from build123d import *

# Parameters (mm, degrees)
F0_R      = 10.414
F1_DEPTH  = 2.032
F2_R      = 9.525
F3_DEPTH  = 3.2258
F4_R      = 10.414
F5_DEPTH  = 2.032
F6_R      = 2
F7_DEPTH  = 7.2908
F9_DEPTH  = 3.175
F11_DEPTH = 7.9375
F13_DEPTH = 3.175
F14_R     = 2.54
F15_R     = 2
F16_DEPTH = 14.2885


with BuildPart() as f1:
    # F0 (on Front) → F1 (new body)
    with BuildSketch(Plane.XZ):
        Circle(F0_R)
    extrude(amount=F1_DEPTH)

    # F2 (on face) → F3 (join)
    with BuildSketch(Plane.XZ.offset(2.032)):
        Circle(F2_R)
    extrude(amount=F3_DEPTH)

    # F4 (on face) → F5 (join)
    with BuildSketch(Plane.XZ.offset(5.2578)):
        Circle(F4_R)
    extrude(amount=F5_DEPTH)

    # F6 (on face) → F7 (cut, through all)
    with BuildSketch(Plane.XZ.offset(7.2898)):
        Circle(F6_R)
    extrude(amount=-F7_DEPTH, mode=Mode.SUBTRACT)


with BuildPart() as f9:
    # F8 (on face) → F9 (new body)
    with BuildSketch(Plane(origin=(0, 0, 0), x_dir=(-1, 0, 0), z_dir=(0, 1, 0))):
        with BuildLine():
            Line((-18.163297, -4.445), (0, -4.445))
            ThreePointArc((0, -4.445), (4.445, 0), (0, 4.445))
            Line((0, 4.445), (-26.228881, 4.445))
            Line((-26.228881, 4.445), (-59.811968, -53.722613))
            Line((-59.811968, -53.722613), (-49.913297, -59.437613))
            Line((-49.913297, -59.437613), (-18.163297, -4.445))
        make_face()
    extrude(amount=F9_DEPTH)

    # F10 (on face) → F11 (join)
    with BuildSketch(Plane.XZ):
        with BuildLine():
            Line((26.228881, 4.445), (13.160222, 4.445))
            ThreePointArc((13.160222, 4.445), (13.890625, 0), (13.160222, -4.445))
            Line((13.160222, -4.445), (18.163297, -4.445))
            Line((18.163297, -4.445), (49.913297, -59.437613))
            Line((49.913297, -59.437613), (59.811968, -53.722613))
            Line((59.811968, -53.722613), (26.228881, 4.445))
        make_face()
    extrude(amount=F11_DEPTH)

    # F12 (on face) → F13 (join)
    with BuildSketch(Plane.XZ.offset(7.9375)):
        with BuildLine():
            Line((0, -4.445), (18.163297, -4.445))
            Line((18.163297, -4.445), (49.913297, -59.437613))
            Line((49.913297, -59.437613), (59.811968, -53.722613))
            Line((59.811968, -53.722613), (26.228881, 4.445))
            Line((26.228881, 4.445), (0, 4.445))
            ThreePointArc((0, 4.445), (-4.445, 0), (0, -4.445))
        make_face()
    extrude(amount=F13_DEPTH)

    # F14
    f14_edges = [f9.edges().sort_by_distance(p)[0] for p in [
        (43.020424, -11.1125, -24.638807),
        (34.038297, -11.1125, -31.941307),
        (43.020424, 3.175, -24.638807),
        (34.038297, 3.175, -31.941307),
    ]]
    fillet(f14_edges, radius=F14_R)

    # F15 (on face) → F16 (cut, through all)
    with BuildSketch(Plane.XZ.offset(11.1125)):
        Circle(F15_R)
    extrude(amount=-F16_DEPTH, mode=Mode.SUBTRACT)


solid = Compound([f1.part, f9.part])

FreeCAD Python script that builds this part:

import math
import FreeCAD as App
import Part
import Sketcher
Q = App.Units.Quantity


def edges_at(feature, points):
    """Names of the edges that pass closest to the given points."""
    edges = feature.Shape.Edges
    near = lambda p: min(range(len(edges)), key=lambda i: edges[i].distToShape(Part.Vertex(*p))[0])
    return sorted({f"Edge{near(p) + 1}" for p in points})

doc = App.newDocument("Part")
body = doc.addObject("PartDesign::Body", "Body")

# Sketch on XZ plane
sketch1 = doc.addObject("Sketcher::SketchObject", "Sketch")
body.addObject(sketch1)
sketch1.AttachmentSupport = (doc.XZ_Plane, [""])
sketch1.MapMode = "FlatFace"
sketch1.addGeometry(Part.Circle(App.Vector(0, 0, 0), App.Vector(0, 0, 1), 10.414), False)
sketch1.addConstraint([
    Sketcher.Constraint("Coincident", 0, 3, -1, 1),
    Sketcher.Constraint("Diameter", 0, Q("0.82 in")),
])
pad1 = doc.addObject("PartDesign::Pad", "Pad")
body.addObject(pad1)
pad1.Profile = sketch1
pad1.Length = Q("0.08 in")

# Sketch on XZ plane
sketch2 = doc.addObject("Sketcher::SketchObject", "Sketch001")
body.addObject(sketch2)
sketch2.AttachmentSupport = (doc.XZ_Plane, [""])
sketch2.MapMode = "FlatFace"
sketch2.AttachmentOffset = App.Placement(App.Vector(0, 0, 0.08 * 25.4), App.Rotation())
sketch2.addGeometry(Part.Circle(App.Vector(0, 0, 0), App.Vector(0, 0, 1), 9.525), False)
sketch2.addConstraint([
    Sketcher.Constraint("Coincident", 0, 3, -1, 1),
    Sketcher.Constraint("Diameter", 0, Q("0.75 in")),
])
pad2 = doc.addObject("PartDesign::Pad", "Pad001")
body.addObject(pad2)
pad2.Profile = sketch2
pad2.Length = Q("0.127 in")

# Sketch on XZ plane
sketch3 = doc.addObject("Sketcher::SketchObject", "Sketch002")
body.addObject(sketch3)
sketch3.AttachmentSupport = (doc.XZ_Plane, [""])
sketch3.MapMode = "FlatFace"
sketch3.AttachmentOffset = App.Placement(App.Vector(0, 0, 0.207 * 25.4), App.Rotation())
sketch3.addGeometry(Part.Circle(App.Vector(0, 0, 0), App.Vector(0, 0, 1), 10.414), False)
sketch3.addConstraint([
    Sketcher.Constraint("Coincident", 0, 3, -1, 1),
    Sketcher.Constraint("Diameter", 0, Q("0.82 in")),
])
pad3 = doc.addObject("PartDesign::Pad", "Pad002")
body.addObject(pad3)
pad3.Profile = sketch3
pad3.Length = Q("0.08 in")

# Sketch on XZ plane
sketch4 = doc.addObject("Sketcher::SketchObject", "Sketch003")
body.addObject(sketch4)
sketch4.AttachmentSupport = (doc.XZ_Plane, [""])
sketch4.MapMode = "FlatFace"
sketch4.AttachmentOffset = App.Placement(App.Vector(0, 0, 0.287 * 25.4), App.Rotation())
sketch4.addGeometry(Part.Circle(App.Vector(0, 0, 0), App.Vector(0, 0, 1), 2), False)
sketch4.addConstraint([
    Sketcher.Constraint("Coincident", 0, 3, -1, 1),
    Sketcher.Constraint("Diameter", 0, 4.0),
])
pocket1 = doc.addObject("PartDesign::Pocket", "Pocket")
body.addObject(pocket1)
pocket1.Profile = sketch4
pocket1.Type = "ThroughAll"
body2 = doc.addObject("PartDesign::Body", "Body001")

# Sketch on XZ plane
sketch5 = doc.addObject("Sketcher::SketchObject", "Sketch004")
body2.addObject(sketch5)
sketch5.AttachmentSupport = (doc.getObject("XZ_Plane001"), [""])
sketch5.MapMode = "FlatFace"
sketch5.addGeometry([
    Part.LineSegment(App.Vector(18.163297, -4.445, 0), App.Vector(0, -4.445, 0)),  # 0
    Part.ArcOfCircle(Part.Circle(App.Vector(0, 0, 0), App.Vector(0, 0, 1), 4.445), math.radians(90), math.radians(270)),  # 1
    Part.LineSegment(App.Vector(0, 4.445, 0), App.Vector(26.228881, 4.445, 0)),  # 2
    Part.LineSegment(App.Vector(26.228881, 4.445, 0), App.Vector(59.811968, -53.722613, 0)),  # 3
    Part.LineSegment(App.Vector(59.811968, -53.722613, 0), App.Vector(49.913297, -59.437613, 0)),  # 4
    Part.LineSegment(App.Vector(49.913297, -59.437613, 0), App.Vector(18.163297, -4.445, 0)),  # 5
], False)
sketch5.addConstraint([
    Sketcher.Constraint("Tangent", 0, 2, 1, 2),
    Sketcher.Constraint("Tangent", 1, 1, 2, 1),
    Sketcher.Constraint("Coincident", 2, 2, 3, 1),
    Sketcher.Constraint("Coincident", 3, 2, 4, 1),
    Sketcher.Constraint("Coincident", 4, 2, 5, 1),
    Sketcher.Constraint("Coincident", 5, 2, 0, 1),
    Sketcher.Constraint("Horizontal", 0),
    Sketcher.Constraint("Horizontal", 2),
    Sketcher.Constraint("Coincident", 1, 3, -1, 1),
    Sketcher.Constraint("Perpendicular", 3, 4),
    Sketcher.Constraint("Perpendicular", 4, 5),
    Sketcher.Constraint("Angle", 3, Q("-60 deg")),
    Sketcher.Constraint("Radius", 1, Q("0.175 in")),
    Sketcher.Constraint("Distance", 5, Q("2.5 in")),
    Sketcher.Constraint("Distance", 4, Q("0.45 in")),
    Sketcher.Constraint("DistanceX", 2, 1, 2, 2, 26.228881),
])
pad4 = doc.addObject("PartDesign::Pad", "Pad003")
body2.addObject(pad4)
pad4.Profile = sketch5
pad4.Length = Q("0.125 in")
pad4.Reversed = True

# Sketch on XZ plane
sketch6 = doc.addObject("Sketcher::SketchObject", "Sketch005")
body2.addObject(sketch6)
sketch6.AttachmentSupport = (doc.getObject("XZ_Plane001"), [""])
sketch6.MapMode = "FlatFace"
sketch6.addGeometry([
    Part.LineSegment(App.Vector(26.228881, 4.445, 0), App.Vector(13.160222, 4.445, 0)),  # 0
    Part.ArcOfCircle(Part.Circle(App.Vector(-0.000004, 0, 0), App.Vector(0, 0, 1), 13.890629), math.radians(-18.66292), math.radians(18.66292)),  # 1
    Part.LineSegment(App.Vector(13.160222, -4.445, 0), App.Vector(18.163297, -4.445, 0)),  # 2
    Part.LineSegment(App.Vector(18.163297, -4.445, 0), App.Vector(49.913297, -59.437613, 0)),  # 3
    Part.LineSegment(App.Vector(49.913297, -59.437613, 0), App.Vector(59.811968, -53.722613, 0)),  # 4
    Part.LineSegment(App.Vector(59.811968, -53.722613, 0), App.Vector(26.228881, 4.445, 0)),  # 5
], False)
sketch6.addConstraint([
    Sketcher.Constraint("Coincident", 0, 2, 1, 2),
    Sketcher.Constraint("Coincident", 1, 1, 2, 1),
    Sketcher.Constraint("Coincident", 2, 2, 3, 1),
    Sketcher.Constraint("Coincident", 3, 2, 4, 1),
    Sketcher.Constraint("Coincident", 4, 2, 5, 1),
    Sketcher.Constraint("Coincident", 5, 2, 0, 1),
    Sketcher.Constraint("Horizontal", 0),
    Sketcher.Constraint("Horizontal", 2),
    Sketcher.Constraint("Coincident", 1, 3, -1, 1),
    Sketcher.Constraint("Perpendicular", 3, 4),
    Sketcher.Constraint("Perpendicular", 4, 5),
    Sketcher.Constraint("Vertical", 0, 2, 1, 1),
    Sketcher.Constraint("Angle", 3, Q("-60 deg")),
    Sketcher.Constraint("Radius", 1, Q("0.5468751 in")),
    Sketcher.Constraint("Distance", 3, Q("2.5 in")),
    Sketcher.Constraint("Distance", 4, Q("0.45 in")),
    Sketcher.Constraint("DistanceY", 1, 1, 0, 2, Q("0.35 in")),
    Sketcher.Constraint("DistanceX", 0, 2, 0, 1, 13.068659),
])
pad5 = doc.addObject("PartDesign::Pad", "Pad004")
body2.addObject(pad5)
pad5.Profile = sketch6
pad5.Length = Q("0.3125 in")

# Sketch on XZ plane
sketch7 = doc.addObject("Sketcher::SketchObject", "Sketch006")
body2.addObject(sketch7)
sketch7.AttachmentSupport = (doc.getObject("XZ_Plane001"), [""])
sketch7.MapMode = "FlatFace"
sketch7.AttachmentOffset = App.Placement(App.Vector(0, 0, 0.3125 * 25.4), App.Rotation())
sketch7.addGeometry([
    Part.LineSegment(App.Vector(0, -4.445, 0), App.Vector(18.163297, -4.445, 0)),  # 0
    Part.LineSegment(App.Vector(18.163297, -4.445, 0), App.Vector(49.913297, -59.437613, 0)),  # 1
    Part.LineSegment(App.Vector(49.913297, -59.437613, 0), App.Vector(59.811968, -53.722613, 0)),  # 2
    Part.LineSegment(App.Vector(59.811968, -53.722613, 0), App.Vector(26.228881, 4.445, 0)),  # 3
    Part.LineSegment(App.Vector(26.228881, 4.445, 0), App.Vector(0, 4.445, 0)),  # 4
    Part.ArcOfCircle(Part.Circle(App.Vector(0, 0, 0), App.Vector(0, 0, 1), 4.445), math.radians(90), math.radians(270)),  # 5
], False)
sketch7.addConstraint([
    Sketcher.Constraint("Coincident", 0, 2, 1, 1),
    Sketcher.Constraint("Coincident", 1, 2, 2, 1),
    Sketcher.Constraint("Coincident", 2, 2, 3, 1),
    Sketcher.Constraint("Coincident", 3, 2, 4, 1),
    Sketcher.Constraint("Tangent", 4, 2, 5, 1),
    Sketcher.Constraint("Tangent", 5, 2, 0, 1),
    Sketcher.Constraint("Horizontal", 0),
    Sketcher.Constraint("Horizontal", 4),
    Sketcher.Constraint("Coincident", 5, 3, -1, 1),
    Sketcher.Constraint("Perpendicular", 1, 2),
    Sketcher.Constraint("Perpendicular", 2, 3),
    Sketcher.Constraint("Angle", 1, Q("-60 deg")),
    Sketcher.Constraint("Radius", 5, Q("0.175 in")),
    Sketcher.Constraint("Distance", 1, Q("2.5 in")),
    Sketcher.Constraint("Distance", 2, Q("0.45 in")),
    Sketcher.Constraint("DistanceX", 4, 2, 4, 1, 26.228881),
])
pad6 = doc.addObject("PartDesign::Pad", "Pad005")
body2.addObject(pad6)
pad6.Profile = sketch7
pad6.Length = Q("0.125 in")
doc.recompute()

fillet = doc.addObject("PartDesign::Fillet", "Fillet")
body2.addObject(fillet)
fillet.Base = (pad6, edges_at(pad6, [
    (43.02, -11.113, -24.639),
    (34.038, -11.113, -31.941),
    (43.02, 3.175, -24.639),
    (34.038, 3.175, -31.941),
]))
fillet.Radius = Q("0.1 in")

# Sketch on XZ plane
sketch8 = doc.addObject("Sketcher::SketchObject", "Sketch007")
body2.addObject(sketch8)
sketch8.AttachmentSupport = (doc.getObject("XZ_Plane001"), [""])
sketch8.MapMode = "FlatFace"
sketch8.AttachmentOffset = App.Placement(App.Vector(0, 0, 0.4375 * 25.4), App.Rotation())
sketch8.addGeometry(Part.Circle(App.Vector(0, 0, 0), App.Vector(0, 0, 1), 2), False)
sketch8.addConstraint([
    Sketcher.Constraint("Coincident", 0, 3, -1, 1),
    Sketcher.Constraint("Diameter", 0, 4.0),
])
pocket2 = doc.addObject("PartDesign::Pocket", "Pocket001")
body2.addObject(pocket2)
pocket2.Profile = sketch8
pocket2.Type = "ThroughAll"

doc.recompute()
